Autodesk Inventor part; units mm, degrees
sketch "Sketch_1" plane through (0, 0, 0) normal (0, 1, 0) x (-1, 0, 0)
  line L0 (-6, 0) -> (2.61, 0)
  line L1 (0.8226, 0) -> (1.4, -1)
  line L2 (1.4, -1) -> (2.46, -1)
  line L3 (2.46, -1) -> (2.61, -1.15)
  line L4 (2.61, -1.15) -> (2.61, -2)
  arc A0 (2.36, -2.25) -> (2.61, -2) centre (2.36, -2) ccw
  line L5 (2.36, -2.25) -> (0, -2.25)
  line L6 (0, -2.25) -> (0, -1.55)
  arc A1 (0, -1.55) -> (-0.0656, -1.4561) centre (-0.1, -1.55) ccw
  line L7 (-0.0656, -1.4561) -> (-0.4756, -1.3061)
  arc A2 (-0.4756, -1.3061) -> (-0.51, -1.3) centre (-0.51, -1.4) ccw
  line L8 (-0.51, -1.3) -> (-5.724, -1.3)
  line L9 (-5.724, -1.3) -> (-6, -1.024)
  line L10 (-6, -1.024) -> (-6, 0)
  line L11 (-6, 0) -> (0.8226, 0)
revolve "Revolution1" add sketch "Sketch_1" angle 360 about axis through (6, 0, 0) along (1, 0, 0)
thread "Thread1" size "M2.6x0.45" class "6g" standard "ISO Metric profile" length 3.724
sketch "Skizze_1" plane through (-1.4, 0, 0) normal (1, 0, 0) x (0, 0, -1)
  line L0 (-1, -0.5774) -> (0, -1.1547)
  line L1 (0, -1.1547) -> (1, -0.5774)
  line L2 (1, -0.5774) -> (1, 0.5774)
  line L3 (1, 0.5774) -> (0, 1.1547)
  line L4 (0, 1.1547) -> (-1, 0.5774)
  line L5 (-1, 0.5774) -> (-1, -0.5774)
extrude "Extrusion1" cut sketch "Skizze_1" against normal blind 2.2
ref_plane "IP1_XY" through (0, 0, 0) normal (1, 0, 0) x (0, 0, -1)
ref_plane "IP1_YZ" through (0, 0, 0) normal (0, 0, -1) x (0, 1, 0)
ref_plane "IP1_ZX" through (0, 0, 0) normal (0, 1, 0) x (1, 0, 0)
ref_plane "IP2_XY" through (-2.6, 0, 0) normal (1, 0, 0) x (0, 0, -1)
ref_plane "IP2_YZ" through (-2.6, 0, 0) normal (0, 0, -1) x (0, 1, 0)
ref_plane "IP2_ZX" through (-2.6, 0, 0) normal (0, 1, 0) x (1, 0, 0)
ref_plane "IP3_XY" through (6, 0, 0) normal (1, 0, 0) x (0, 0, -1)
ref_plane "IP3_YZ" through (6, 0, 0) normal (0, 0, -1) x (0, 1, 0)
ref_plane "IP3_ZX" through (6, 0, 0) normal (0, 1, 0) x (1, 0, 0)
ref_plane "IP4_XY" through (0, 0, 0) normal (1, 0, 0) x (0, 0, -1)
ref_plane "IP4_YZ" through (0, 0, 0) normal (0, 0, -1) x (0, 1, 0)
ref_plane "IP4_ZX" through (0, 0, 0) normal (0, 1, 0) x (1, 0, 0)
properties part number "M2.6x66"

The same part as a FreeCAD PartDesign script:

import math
import FreeCAD as App
import Part
import Sketcher
from FreeCAD import Vector
Q = App.Units.Quantity

doc = App.newDocument("Part")
body = doc.addObject("PartDesign::Body", "Body")

# Sketch on XZ plane
sketch1 = body.newObject("Sketcher::SketchObject", "Sketch")
sketch1.AttachmentSupport = (doc.getObject("XZ_Plane"), [""])
sketch1.MapMode = "FlatFace"
sketch1.addGeometry(Part.LineSegment(Vector(-0.8226, 0, 0), Vector(6, 0, 0)), False)
sketch1.addGeometry(Part.LineSegment(Vector(6, 0, 0), Vector(6, -1.024, 0)), False)
sketch1.addGeometry(Part.LineSegment(Vector(6, -1.024, 0), Vector(5.724, -1.3, 0)), False)
sketch1.addGeometry(Part.LineSegment(Vector(5.724, -1.3, 0), Vector(0.51, -1.3, 0)), False)
sketch1.addGeometry(Part.ArcOfCircle(Part.Circle(Vector(0.51, -1.4, 0), Vector(0, 0, 1), 0.100003), math.radians(90), math.radians(110.120166)), False)
sketch1.addGeometry(Part.LineSegment(Vector(0.4756, -1.3061, 0), Vector(0.0656, -1.4561, 0)), False)
sketch1.addGeometry(Part.ArcOfCircle(Part.Circle(Vector(0.1, -1.55, 0), Vector(0, 0, 1), 0.1), math.radians(110.120166), math.radians(180)), False)
sketch1.addGeometry(Part.LineSegment(Vector(0, -1.55, 0), Vector(0, -2.25, 0)), False)
sketch1.addGeometry(Part.LineSegment(Vector(0, -2.25, 0), Vector(-2.36, -2.25, 0)), False)
sketch1.addGeometry(Part.ArcOfCircle(Part.Circle(Vector(-2.36, -2, 0), Vector(0, 0, 1), 0.25), math.radians(180), math.radians(270)), False)
sketch1.addGeometry(Part.LineSegment(Vector(-2.61, -2, 0), Vector(-2.61, -1.15, 0)), False)
sketch1.addGeometry(Part.LineSegment(Vector(-2.61, -1.15, 0), Vector(-2.46, -1, 0)), False)
sketch1.addGeometry(Part.LineSegment(Vector(-2.46, -1, 0), Vector(-1.4, -1, 0)), False)
sketch1.addGeometry(Part.LineSegment(Vector(-1.4, -1, 0), Vector(-0.8226, 0, 0)), False)
sketch1.addConstraint(Sketcher.Constraint("Coincident", 0, 2, 1, 1))
sketch1.addConstraint(Sketcher.Constraint("Coincident", 1, 2, 2, 1))
sketch1.addConstraint(Sketcher.Constraint("Coincident", 2, 2, 3, 1))
sketch1.addConstraint(Sketcher.Constraint("Tangent", 3, 2, 4, 1))
sketch1.addConstraint(Sketcher.Constraint("Tangent", 4, 2, 5, 1))
sketch1.addConstraint(Sketcher.Constraint("Tangent", 5, 2, 6, 1))
sketch1.addConstraint(Sketcher.Constraint("Tangent", 6, 2, 7, 1))
sketch1.addConstraint(Sketcher.Constraint("Coincident", 7, 2, 8, 1))
sketch1.addConstraint(Sketcher.Constraint("Tangent", 8, 2, 9, 2))
sketch1.addConstraint(Sketcher.Constraint("Tangent", 9, 1, 10, 1))
sketch1.addConstraint(Sketcher.Constraint("Coincident", 10, 2, 11, 1))
sketch1.addConstraint(Sketcher.Constraint("Coincident", 11, 2, 12, 1))
sketch1.addConstraint(Sketcher.Constraint("Coincident", 12, 2, 13, 1))
sketch1.addConstraint(Sketcher.Constraint("Coincident", 13, 2, 0, 1))
sketch1.addConstraint(Sketcher.Constraint("Horizontal", 0))
sketch1.addConstraint(Sketcher.Constraint("Vertical", 1))
sketch1.addConstraint(Sketcher.Constraint("Horizontal", 3))
sketch1.addConstraint(Sketcher.Constraint("Vertical", 7))
sketch1.addConstraint(Sketcher.Constraint("Horizontal", 8))
sketch1.addConstraint(Sketcher.Constraint("Vertical", 10))
sketch1.addConstraint(Sketcher.Constraint("Horizontal", 12))
sketch1.addConstraint(Sketcher.Constraint("Equal", 4, 6))
sketch1.addConstraint(Sketcher.Constraint("PointOnObject", 0, 2, -1))
sketch1.addConstraint(Sketcher.Constraint("PointOnObject", 6, 2, -2))
sketch1.addConstraint(Sketcher.Constraint("Parallel", 2, 11))
sketch1.addConstraint(Sketcher.Constraint("Radius", 4, Q("0.1 mm")))
sketch1.addConstraint(Sketcher.Constraint("Angle", 2, Q("-135 deg")))
sketch1.addConstraint(Sketcher.Constraint("Radius", 9, Q("0.25 mm")))
sketch1.addConstraint(Sketcher.Constraint("DistanceY", 7, 2, 7, 1, Q("0.7 mm")))
sketch1.addConstraint(Sketcher.Constraint("DistanceY", 9, 3, -1, 1, Q("2 mm")))
sketch1.addConstraint(Sketcher.Constraint("DistanceX", -1, 1, 0, 2, Q("6 mm")))
sketch1.addConstraint(Sketcher.Constraint("DistanceY", 11, 2, -1, 1, Q("1 mm")))
sketch1.addConstraint(Sketcher.Constraint("DistanceX", 8, 2, 8, 1, Q("2.36 mm")))
sketch1.addConstraint(Sketcher.Constraint("DistanceX", 12, 1, 12, 2, Q("1.06 mm")))
sketch1.addConstraint(Sketcher.Constraint("DistanceY", 10, 1, 10, 2, Q("0.85 mm")))
sketch1.addConstraint(Sketcher.Constraint("DistanceY", 4, 3, -1, 1, Q("1.4 mm")))
sketch1.addConstraint(Sketcher.Constraint("DistanceX", 3, 2, 3, 1, Q("5.214 mm")))
sketch1.addConstraint(Sketcher.Constraint("DistanceY", 1, 2, 1, 1, Q("1.024 mm")))
sketch1.addConstraint(Sketcher.Constraint("DistanceX", 0, 1, 0, 2, Q("6.8226 mm")))
revolution = body.newObject("PartDesign::Revolution", "Revolution")
revolution.Profile = sketch1
revolution.ReferenceAxis = (sketch1, ["H_Axis"])
revolution.Angle = 360

# Sketch on YZ plane
sketch2 = body.newObject("Sketcher::SketchObject", "Sketch001")
sketch2.AttachmentSupport = (doc.getObject("YZ_Plane"), [""])
sketch2.MapMode = "FlatFace"
sketch2.AttachmentOffset = App.Placement(Vector(0, 0, -1.4), App.Rotation())
sketch2.addGeometry(Part.LineSegment(Vector(0.5774, 1, 0), Vector(-0.5774, 1, 0)), False)
sketch2.addGeometry(Part.LineSegment(Vector(-0.5774, 1, 0), Vector(-1.1547, 0, 0)), False)
sketch2.addGeometry(Part.LineSegment(Vector(-1.1547, 0, 0), Vector(-0.5774, -1, 0)), False)
sketch2.addGeometry(Part.LineSegment(Vector(-0.5774, -1, 0), Vector(0.5774, -1, 0)), False)
sketch2.addGeometry(Part.LineSegment(Vector(0.5774, -1, 0), Vector(1.1547, 0, 0)), False)
sketch2.addGeometry(Part.LineSegment(Vector(1.1547, 0, 0), Vector(0.5774, 1, 0)), False)
sketch2.addConstraint(Sketcher.Constraint("Coincident", 0, 2, 1, 1))
sketch2.addConstraint(Sketcher.Constraint("Coincident", 1, 2, 2, 1))
sketch2.addConstraint(Sketcher.Constraint("Coincident", 2, 2, 3, 1))
sketch2.addConstraint(Sketcher.Constraint("Coincident", 3, 2, 4, 1))
sketch2.addConstraint(Sketcher.Constraint("Coincident", 4, 2, 5, 1))
sketch2.addConstraint(Sketcher.Constraint("Coincident", 5, 2, 0, 1))
sketch2.addConstraint(Sketcher.Constraint("Horizontal", 0))
sketch2.addConstraint(Sketcher.Constraint("Horizontal", 3))
sketch2.addConstraint(Sketcher.Constraint("Symmetric", 0, 2, 3, 2, -1, 1))
sketch2.addConstraint(Sketcher.Constraint("Symmetric", 1, 2, 4, 2, -1, 1))
sketch2.addConstraint(Sketcher.Constraint("PointOnObject", 1, 2, -1))
sketch2.addConstraint(Sketcher.Constraint("Parallel", 2, 5))
sketch2.addConstraint(Sketcher.Constraint("Vertical", 0, 2, 2, 2))
sketch2.addConstraint(Sketcher.Constraint("DistanceY", -1, 1, 0, 2, Q("1 mm")))
sketch2.addConstraint(Sketcher.Constraint("DistanceX", 0, 2, 0, 1, Q("1.1548 mm")))
sketch2.addConstraint(Sketcher.Constraint("DistanceX", 1, 2, 3, 2, Q("1.732 mm")))
pocket1 = body.newObject("PartDesign::Pocket", "Pocket")
pocket1.Profile = sketch2
pocket1.Length = 2.2

doc.recompute()
